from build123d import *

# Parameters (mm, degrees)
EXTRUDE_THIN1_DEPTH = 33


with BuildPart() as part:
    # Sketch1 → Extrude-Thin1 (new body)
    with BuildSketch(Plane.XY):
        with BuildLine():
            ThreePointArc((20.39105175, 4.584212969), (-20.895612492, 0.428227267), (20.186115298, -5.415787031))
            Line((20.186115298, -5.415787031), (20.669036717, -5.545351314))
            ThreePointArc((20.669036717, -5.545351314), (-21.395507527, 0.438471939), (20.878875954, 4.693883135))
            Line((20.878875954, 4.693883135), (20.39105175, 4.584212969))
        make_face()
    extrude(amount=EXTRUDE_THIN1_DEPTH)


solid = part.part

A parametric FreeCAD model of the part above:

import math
import FreeCAD as App
import Part
import Sketcher

V = App.Vector
Q = App.Units.Quantity

doc = App.newDocument("Part")
body = doc.addObject("PartDesign::Body", "Body")

sketch1 = body.newObject("Sketcher::SketchObject", "Sketch")
sketch1.AttachmentSupport = (doc.getObject("XY_Plane"), [""])
sketch1.MapMode = "FlatFace"
sketch1.addGeometry([
    Part.ArcOfCircle(Part.Circle(V(0, 0, 0), V(0, 0, 1), 20.9), math.radians(12.670291), math.radians(344.981639)),
    Part.LineSegment(V(20.391052, 4.584213, 0), V(20.878876, 4.693883, 0)),
    Part.ArcOfCircle(Part.Circle(V(0, 0, 0), V(0, 0, 1), 21.4), math.radians(12.670291), math.radians(344.981639)),
    Part.LineSegment(V(20.669037, -5.545351, 0), V(20.186115, -5.415787, 0)),
], False)
sketch1.addConstraint([
    Sketcher.Constraint("Coincident", 0, 1, 1, 1),
    Sketcher.Constraint("Coincident", 1, 2, 2, 1),
    Sketcher.Constraint("Coincident", 2, 2, 3, 1),
    Sketcher.Constraint("Coincident", 3, 2, 0, 2),
    Sketcher.Constraint("Coincident", 0, 3, -1, 1),
    Sketcher.Constraint("Coincident", 2, 3, -1, 1),
    Sketcher.Constraint("Radius", 0, Q("20.9 mm")),
    Sketcher.Constraint("Radius", 2, Q("21.4 mm")),
    Sketcher.Constraint("DistanceY", 3, 2, 0, 1, Q("10 mm")),
    Sketcher.Constraint("DistanceX", -1, 1, 0, 1, Q("20.391052 mm")),
    Sketcher.Constraint("DistanceY", 2, 2, -1, 1, Q("5.545351 mm")),
    Sketcher.Constraint("DistanceY", 0, 1, 1, 2, Q("0.10967 mm")),
])
pad1 = body.newObject("PartDesign::Pad", "Pad")
pad1.Profile = sketch1
pad1.Length = 33

doc.recompute()
